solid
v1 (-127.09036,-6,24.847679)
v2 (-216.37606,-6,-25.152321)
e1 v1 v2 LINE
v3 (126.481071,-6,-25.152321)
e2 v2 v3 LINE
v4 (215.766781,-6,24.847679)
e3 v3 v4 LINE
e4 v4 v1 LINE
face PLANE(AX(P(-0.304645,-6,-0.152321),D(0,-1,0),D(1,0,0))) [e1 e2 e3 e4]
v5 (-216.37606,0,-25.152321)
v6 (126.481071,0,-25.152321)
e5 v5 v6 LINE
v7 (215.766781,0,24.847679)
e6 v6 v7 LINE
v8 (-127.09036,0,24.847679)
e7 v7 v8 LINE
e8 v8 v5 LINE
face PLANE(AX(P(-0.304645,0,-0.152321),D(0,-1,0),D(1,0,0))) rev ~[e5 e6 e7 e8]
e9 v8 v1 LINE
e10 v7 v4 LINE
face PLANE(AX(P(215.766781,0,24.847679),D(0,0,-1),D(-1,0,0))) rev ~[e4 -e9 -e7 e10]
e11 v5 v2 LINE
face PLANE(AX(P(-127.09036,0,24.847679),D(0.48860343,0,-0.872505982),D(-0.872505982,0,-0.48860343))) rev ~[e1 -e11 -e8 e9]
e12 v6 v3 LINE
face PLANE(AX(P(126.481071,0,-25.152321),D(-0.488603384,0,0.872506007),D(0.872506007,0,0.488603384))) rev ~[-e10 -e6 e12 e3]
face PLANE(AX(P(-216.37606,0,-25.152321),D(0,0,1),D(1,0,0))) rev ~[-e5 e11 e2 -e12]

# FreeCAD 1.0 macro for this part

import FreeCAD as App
import Part
import Sketcher

V = App.Vector

doc = App.newDocument("Part")
body = doc.addObject("PartDesign::Body", "Body")

# Sketch on XZ plane
sketch1 = doc.addObject("Sketcher::SketchObject", "Sketch")
body.addObject(sketch1)
sketch1.AttachmentSupport = (doc.XZ_Plane, [""])
sketch1.MapMode = "FlatFace"
sketch1.addGeometry([
    Part.LineSegment(V(-127, 25, 0), V(-216, -25, 0)),
    Part.LineSegment(V(-216, -25, 0), V(126, -25, 0)),
    Part.LineSegment(V(126, -25, 0), V(216, 25, 0)),
    Part.LineSegment(V(216, 25, 0), V(-127, 25, 0)),
], False)
sketch1.addConstraint([
    Sketcher.Constraint("Coincident", 0, 2, 1, 1),
    Sketcher.Constraint("Coincident", 1, 2, 2, 1),
    Sketcher.Constraint("Coincident", 2, 2, 3, 1),
    Sketcher.Constraint("Coincident", 3, 2, 0, 1),
    Sketcher.Constraint("Horizontal", 1),
    Sketcher.Constraint("Horizontal", 3),
    Sketcher.Constraint("Parallel", 0, 2),
    Sketcher.Constraint("DistanceY", 1, 2, 2, 2, 50.0),
    Sketcher.Constraint("DistanceX", 1, 1, 1, 2, 342.85713),
    Sketcher.Constraint("DistanceX", 0, 2, 3, 2, 89.2857),
    Sketcher.Constraint("DistanceX", 0, 2, -1, 1, 216.37606),
    Sketcher.Constraint("DistanceY", 0, 2, -1, 1, 25.152321),
])
pad1 = doc.addObject("PartDesign::Pad", "Pad")
body.addObject(pad1)
pad1.Profile = sketch1
pad1.Length = 6

doc.recompute()
